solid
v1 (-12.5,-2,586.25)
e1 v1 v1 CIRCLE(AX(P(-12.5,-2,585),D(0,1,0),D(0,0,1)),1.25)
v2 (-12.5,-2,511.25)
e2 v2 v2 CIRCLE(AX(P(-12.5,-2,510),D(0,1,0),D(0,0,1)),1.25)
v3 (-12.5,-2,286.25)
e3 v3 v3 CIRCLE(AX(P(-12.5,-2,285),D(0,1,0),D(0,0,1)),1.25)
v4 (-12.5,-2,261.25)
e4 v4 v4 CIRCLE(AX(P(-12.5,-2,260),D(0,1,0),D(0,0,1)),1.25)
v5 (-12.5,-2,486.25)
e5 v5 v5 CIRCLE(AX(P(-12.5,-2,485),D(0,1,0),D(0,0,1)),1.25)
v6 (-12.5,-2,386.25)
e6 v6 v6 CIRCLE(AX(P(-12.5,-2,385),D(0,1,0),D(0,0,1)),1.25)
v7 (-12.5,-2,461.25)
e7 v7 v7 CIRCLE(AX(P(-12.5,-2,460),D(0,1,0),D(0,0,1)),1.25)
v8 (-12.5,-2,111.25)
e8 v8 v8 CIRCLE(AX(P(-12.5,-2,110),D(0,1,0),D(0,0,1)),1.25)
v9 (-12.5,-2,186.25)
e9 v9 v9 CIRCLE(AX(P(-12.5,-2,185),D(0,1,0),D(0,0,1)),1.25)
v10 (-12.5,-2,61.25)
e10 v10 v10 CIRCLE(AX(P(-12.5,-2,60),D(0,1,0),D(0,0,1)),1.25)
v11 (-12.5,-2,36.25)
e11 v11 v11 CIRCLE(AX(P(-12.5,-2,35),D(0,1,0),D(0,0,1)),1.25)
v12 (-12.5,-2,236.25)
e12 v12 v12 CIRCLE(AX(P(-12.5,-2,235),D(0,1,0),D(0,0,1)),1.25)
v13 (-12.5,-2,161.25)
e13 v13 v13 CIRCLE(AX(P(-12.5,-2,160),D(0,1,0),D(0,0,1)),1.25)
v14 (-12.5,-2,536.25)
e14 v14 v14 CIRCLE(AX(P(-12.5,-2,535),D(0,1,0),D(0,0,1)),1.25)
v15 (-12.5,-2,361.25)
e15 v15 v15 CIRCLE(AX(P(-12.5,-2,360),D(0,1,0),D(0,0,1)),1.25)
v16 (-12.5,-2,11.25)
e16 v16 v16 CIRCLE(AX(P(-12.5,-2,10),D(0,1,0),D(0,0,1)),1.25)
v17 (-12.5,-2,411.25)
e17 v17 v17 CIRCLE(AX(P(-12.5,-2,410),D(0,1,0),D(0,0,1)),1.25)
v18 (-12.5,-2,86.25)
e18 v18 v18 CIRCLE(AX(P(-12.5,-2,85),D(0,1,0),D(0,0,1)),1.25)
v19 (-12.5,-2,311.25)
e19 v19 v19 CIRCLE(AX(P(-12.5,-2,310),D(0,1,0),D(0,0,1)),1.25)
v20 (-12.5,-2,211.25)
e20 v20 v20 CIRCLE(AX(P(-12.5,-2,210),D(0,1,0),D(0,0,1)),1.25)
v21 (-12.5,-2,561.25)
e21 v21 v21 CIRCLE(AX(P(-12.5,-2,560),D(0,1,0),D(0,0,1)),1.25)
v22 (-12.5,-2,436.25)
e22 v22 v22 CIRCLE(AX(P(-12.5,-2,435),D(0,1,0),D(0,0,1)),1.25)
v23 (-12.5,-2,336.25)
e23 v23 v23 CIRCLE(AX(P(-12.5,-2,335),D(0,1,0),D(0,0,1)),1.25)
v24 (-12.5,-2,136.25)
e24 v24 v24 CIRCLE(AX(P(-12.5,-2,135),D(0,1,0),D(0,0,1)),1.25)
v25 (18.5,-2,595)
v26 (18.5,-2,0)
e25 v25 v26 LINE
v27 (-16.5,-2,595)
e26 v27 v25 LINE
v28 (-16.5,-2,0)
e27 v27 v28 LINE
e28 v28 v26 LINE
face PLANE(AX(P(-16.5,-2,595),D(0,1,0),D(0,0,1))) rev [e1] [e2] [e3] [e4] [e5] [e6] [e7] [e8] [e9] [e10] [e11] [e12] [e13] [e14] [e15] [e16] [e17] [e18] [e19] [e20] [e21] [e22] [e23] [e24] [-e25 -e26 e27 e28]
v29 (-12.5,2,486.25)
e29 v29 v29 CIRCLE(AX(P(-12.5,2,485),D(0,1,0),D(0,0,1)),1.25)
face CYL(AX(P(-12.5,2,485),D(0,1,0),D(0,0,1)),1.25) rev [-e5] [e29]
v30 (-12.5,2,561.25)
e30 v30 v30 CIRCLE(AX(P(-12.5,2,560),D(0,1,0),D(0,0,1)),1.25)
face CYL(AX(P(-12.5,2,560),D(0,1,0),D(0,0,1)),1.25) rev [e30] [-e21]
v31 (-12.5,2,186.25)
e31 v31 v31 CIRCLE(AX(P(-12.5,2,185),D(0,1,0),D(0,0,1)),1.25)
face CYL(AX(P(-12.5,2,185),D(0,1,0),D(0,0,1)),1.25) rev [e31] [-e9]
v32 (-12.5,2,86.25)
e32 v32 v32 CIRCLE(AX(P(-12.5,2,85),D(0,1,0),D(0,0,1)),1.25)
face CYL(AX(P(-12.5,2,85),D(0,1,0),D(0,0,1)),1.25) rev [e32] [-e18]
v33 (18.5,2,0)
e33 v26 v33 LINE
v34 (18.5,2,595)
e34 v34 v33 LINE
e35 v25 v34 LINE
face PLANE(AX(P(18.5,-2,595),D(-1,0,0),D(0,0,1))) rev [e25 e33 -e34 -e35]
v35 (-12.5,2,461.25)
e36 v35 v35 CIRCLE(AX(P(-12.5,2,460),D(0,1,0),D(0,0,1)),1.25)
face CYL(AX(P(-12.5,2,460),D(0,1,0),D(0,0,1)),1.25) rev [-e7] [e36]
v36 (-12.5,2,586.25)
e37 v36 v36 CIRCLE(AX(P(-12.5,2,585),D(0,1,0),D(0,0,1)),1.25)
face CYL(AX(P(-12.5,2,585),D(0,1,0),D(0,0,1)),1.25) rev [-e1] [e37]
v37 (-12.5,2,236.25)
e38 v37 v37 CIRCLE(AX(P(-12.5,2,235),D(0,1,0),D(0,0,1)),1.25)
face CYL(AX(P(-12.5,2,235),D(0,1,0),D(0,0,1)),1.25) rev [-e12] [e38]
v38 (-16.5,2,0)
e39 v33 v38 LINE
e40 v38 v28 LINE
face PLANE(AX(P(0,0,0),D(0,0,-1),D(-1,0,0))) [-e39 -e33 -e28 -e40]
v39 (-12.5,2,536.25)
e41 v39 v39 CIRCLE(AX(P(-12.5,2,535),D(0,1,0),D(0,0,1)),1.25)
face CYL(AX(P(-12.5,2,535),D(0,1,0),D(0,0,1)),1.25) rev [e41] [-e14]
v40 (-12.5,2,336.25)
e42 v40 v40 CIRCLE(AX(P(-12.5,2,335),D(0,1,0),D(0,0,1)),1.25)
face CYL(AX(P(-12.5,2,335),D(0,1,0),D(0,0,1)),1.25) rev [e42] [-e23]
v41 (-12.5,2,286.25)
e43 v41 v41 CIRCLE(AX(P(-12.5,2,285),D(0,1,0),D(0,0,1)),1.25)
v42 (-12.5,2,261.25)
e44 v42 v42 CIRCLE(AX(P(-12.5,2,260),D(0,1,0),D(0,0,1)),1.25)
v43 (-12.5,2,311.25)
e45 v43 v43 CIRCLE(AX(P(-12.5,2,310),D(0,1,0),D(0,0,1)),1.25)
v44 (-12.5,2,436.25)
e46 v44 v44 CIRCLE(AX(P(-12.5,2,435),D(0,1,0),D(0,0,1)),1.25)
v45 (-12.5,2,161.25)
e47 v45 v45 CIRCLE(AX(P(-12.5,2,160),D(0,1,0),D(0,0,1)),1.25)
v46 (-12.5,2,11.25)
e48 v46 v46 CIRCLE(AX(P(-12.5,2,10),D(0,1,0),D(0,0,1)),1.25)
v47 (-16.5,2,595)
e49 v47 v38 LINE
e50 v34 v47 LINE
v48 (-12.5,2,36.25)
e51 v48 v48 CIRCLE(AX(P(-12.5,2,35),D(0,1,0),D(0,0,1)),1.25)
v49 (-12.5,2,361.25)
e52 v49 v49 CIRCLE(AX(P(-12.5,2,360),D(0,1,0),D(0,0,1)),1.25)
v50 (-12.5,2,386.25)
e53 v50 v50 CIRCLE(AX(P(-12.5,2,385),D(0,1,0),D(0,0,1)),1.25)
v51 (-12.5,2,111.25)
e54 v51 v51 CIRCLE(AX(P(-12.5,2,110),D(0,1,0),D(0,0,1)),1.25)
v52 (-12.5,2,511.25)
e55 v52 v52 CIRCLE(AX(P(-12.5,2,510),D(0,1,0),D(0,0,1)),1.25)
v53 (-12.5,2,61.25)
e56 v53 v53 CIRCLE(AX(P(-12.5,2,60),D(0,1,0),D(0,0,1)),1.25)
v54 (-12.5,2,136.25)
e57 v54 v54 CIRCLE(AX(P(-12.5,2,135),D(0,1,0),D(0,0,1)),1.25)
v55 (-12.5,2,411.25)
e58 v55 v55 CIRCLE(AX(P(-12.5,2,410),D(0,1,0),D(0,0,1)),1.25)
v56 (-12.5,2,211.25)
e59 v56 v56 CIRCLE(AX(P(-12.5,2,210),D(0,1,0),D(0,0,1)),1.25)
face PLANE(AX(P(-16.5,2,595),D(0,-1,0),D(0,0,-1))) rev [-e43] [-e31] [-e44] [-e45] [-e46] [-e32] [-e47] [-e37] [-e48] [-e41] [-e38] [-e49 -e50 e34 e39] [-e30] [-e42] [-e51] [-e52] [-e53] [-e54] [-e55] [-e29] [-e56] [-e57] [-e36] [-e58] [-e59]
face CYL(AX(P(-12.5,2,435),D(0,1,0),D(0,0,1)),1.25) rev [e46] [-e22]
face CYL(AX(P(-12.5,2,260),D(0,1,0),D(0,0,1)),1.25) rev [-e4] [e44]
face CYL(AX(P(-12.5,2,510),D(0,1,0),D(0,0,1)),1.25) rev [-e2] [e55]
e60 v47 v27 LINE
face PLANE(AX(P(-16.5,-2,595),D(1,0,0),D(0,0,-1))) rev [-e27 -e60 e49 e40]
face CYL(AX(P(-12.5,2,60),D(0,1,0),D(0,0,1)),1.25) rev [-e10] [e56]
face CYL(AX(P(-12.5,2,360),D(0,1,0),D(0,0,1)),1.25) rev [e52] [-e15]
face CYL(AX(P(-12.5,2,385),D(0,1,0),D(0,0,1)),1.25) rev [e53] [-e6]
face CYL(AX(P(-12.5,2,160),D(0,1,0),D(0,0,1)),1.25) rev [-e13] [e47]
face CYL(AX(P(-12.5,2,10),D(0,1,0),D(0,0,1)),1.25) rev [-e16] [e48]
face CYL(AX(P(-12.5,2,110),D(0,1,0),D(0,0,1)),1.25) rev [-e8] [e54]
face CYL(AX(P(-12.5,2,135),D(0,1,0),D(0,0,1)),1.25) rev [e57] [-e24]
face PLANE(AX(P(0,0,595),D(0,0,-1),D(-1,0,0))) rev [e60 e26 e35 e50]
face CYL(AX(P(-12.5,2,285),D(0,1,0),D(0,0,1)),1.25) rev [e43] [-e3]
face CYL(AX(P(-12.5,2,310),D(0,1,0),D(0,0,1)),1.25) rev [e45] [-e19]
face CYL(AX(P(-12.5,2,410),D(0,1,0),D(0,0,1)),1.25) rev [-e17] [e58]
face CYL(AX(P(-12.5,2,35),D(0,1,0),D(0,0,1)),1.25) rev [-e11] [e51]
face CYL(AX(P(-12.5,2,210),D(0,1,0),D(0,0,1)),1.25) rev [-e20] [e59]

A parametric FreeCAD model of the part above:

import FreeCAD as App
import Part
import Sketcher
from FreeCAD import Vector


def add_polygon(sketch, points):
    """Adds a closed chain of lines whose ends are joined by coincident constraints."""
    first, n = sketch.GeometryCount, len(points)
    for a, b in zip(points, points[1:] + points[:1]):
        sketch.addGeometry(Part.LineSegment(App.Vector(*a, 0), App.Vector(*b, 0)), False)
    for i in range(n):
        sketch.addConstraint(Sketcher.Constraint("Coincident", first + i, 2, first + (i + 1) % n, 1))

doc = App.newDocument("Part")
body = doc.addObject("PartDesign::Body", "Body")

sketch1 = body.newObject("Sketcher::SketchObject", "Sketch")
sketch1.AttachmentSupport = (doc.getObject("XY_Plane"), [""])
sketch1.MapMode = "FlatFace"
add_polygon(sketch1, [(-16.5, 2), (-16.5, -2), (18.5, -2), (18.5, 2)])
sketch1.addConstraint([
    Sketcher.Constraint("Vertical", 0),
    Sketcher.Constraint("Horizontal", 1),
    Sketcher.Constraint("Vertical", 2),
    Sketcher.Constraint("Horizontal", 3),
    Sketcher.Constraint("DistanceX", 1, 1, 1, 2, 35.0),
    Sketcher.Constraint("DistanceY", 0, 2, 0, 1, 4.0),
    Sketcher.Constraint("DistanceY", 0, 2, -1, 1, 2.0),
    Sketcher.Constraint("DistanceX", 0, 2, -1, 1, 16.5),
])
pad1 = body.newObject("PartDesign::Pad", "Pad")
pad1.Profile = sketch1
pad1.Length = 595

sketch2 = body.newObject("Sketcher::SketchObject", "Sketch001")
sketch2.AttachmentSupport = (doc.getObject("XZ_Plane"), [""])
sketch2.MapMode = "FlatFace"
sketch2.AttachmentOffset = App.Placement(Vector(0, 0, -2), App.Rotation())
sketch2.addGeometry(Part.Circle(Vector(-12.5, 10, 0), Vector(0, 0, 1), 1.2), False)
sketch2.addConstraint([
    Sketcher.Constraint("Diameter", 0, 2.5),
    Sketcher.Constraint("DistanceY", -1, 1, 0, 3, 10.0),
    Sketcher.Constraint("DistanceX", 0, 3, -1, 1, 12.5),
])
doc.recompute()
hole = body.newObject("PartDesign::Hole", "Hole")
hole.Profile = sketch2
hole.ThreadType = "None"
hole.Diameter = 2.5
hole.DepthType = "ThroughAll"
hole.Reversed = True
doc.recompute()

linearpattern = body.newObject("PartDesign::LinearPattern", "LinearPattern")
linearpattern.Originals = [hole]
linearpattern.Direction = (doc.getObject("Z_Axis"), [""])
linearpattern.Mode = "offset"
linearpattern.Offset = 25
linearpattern.Occurrences = 24
body.Tip = linearpattern

doc.recompute()
